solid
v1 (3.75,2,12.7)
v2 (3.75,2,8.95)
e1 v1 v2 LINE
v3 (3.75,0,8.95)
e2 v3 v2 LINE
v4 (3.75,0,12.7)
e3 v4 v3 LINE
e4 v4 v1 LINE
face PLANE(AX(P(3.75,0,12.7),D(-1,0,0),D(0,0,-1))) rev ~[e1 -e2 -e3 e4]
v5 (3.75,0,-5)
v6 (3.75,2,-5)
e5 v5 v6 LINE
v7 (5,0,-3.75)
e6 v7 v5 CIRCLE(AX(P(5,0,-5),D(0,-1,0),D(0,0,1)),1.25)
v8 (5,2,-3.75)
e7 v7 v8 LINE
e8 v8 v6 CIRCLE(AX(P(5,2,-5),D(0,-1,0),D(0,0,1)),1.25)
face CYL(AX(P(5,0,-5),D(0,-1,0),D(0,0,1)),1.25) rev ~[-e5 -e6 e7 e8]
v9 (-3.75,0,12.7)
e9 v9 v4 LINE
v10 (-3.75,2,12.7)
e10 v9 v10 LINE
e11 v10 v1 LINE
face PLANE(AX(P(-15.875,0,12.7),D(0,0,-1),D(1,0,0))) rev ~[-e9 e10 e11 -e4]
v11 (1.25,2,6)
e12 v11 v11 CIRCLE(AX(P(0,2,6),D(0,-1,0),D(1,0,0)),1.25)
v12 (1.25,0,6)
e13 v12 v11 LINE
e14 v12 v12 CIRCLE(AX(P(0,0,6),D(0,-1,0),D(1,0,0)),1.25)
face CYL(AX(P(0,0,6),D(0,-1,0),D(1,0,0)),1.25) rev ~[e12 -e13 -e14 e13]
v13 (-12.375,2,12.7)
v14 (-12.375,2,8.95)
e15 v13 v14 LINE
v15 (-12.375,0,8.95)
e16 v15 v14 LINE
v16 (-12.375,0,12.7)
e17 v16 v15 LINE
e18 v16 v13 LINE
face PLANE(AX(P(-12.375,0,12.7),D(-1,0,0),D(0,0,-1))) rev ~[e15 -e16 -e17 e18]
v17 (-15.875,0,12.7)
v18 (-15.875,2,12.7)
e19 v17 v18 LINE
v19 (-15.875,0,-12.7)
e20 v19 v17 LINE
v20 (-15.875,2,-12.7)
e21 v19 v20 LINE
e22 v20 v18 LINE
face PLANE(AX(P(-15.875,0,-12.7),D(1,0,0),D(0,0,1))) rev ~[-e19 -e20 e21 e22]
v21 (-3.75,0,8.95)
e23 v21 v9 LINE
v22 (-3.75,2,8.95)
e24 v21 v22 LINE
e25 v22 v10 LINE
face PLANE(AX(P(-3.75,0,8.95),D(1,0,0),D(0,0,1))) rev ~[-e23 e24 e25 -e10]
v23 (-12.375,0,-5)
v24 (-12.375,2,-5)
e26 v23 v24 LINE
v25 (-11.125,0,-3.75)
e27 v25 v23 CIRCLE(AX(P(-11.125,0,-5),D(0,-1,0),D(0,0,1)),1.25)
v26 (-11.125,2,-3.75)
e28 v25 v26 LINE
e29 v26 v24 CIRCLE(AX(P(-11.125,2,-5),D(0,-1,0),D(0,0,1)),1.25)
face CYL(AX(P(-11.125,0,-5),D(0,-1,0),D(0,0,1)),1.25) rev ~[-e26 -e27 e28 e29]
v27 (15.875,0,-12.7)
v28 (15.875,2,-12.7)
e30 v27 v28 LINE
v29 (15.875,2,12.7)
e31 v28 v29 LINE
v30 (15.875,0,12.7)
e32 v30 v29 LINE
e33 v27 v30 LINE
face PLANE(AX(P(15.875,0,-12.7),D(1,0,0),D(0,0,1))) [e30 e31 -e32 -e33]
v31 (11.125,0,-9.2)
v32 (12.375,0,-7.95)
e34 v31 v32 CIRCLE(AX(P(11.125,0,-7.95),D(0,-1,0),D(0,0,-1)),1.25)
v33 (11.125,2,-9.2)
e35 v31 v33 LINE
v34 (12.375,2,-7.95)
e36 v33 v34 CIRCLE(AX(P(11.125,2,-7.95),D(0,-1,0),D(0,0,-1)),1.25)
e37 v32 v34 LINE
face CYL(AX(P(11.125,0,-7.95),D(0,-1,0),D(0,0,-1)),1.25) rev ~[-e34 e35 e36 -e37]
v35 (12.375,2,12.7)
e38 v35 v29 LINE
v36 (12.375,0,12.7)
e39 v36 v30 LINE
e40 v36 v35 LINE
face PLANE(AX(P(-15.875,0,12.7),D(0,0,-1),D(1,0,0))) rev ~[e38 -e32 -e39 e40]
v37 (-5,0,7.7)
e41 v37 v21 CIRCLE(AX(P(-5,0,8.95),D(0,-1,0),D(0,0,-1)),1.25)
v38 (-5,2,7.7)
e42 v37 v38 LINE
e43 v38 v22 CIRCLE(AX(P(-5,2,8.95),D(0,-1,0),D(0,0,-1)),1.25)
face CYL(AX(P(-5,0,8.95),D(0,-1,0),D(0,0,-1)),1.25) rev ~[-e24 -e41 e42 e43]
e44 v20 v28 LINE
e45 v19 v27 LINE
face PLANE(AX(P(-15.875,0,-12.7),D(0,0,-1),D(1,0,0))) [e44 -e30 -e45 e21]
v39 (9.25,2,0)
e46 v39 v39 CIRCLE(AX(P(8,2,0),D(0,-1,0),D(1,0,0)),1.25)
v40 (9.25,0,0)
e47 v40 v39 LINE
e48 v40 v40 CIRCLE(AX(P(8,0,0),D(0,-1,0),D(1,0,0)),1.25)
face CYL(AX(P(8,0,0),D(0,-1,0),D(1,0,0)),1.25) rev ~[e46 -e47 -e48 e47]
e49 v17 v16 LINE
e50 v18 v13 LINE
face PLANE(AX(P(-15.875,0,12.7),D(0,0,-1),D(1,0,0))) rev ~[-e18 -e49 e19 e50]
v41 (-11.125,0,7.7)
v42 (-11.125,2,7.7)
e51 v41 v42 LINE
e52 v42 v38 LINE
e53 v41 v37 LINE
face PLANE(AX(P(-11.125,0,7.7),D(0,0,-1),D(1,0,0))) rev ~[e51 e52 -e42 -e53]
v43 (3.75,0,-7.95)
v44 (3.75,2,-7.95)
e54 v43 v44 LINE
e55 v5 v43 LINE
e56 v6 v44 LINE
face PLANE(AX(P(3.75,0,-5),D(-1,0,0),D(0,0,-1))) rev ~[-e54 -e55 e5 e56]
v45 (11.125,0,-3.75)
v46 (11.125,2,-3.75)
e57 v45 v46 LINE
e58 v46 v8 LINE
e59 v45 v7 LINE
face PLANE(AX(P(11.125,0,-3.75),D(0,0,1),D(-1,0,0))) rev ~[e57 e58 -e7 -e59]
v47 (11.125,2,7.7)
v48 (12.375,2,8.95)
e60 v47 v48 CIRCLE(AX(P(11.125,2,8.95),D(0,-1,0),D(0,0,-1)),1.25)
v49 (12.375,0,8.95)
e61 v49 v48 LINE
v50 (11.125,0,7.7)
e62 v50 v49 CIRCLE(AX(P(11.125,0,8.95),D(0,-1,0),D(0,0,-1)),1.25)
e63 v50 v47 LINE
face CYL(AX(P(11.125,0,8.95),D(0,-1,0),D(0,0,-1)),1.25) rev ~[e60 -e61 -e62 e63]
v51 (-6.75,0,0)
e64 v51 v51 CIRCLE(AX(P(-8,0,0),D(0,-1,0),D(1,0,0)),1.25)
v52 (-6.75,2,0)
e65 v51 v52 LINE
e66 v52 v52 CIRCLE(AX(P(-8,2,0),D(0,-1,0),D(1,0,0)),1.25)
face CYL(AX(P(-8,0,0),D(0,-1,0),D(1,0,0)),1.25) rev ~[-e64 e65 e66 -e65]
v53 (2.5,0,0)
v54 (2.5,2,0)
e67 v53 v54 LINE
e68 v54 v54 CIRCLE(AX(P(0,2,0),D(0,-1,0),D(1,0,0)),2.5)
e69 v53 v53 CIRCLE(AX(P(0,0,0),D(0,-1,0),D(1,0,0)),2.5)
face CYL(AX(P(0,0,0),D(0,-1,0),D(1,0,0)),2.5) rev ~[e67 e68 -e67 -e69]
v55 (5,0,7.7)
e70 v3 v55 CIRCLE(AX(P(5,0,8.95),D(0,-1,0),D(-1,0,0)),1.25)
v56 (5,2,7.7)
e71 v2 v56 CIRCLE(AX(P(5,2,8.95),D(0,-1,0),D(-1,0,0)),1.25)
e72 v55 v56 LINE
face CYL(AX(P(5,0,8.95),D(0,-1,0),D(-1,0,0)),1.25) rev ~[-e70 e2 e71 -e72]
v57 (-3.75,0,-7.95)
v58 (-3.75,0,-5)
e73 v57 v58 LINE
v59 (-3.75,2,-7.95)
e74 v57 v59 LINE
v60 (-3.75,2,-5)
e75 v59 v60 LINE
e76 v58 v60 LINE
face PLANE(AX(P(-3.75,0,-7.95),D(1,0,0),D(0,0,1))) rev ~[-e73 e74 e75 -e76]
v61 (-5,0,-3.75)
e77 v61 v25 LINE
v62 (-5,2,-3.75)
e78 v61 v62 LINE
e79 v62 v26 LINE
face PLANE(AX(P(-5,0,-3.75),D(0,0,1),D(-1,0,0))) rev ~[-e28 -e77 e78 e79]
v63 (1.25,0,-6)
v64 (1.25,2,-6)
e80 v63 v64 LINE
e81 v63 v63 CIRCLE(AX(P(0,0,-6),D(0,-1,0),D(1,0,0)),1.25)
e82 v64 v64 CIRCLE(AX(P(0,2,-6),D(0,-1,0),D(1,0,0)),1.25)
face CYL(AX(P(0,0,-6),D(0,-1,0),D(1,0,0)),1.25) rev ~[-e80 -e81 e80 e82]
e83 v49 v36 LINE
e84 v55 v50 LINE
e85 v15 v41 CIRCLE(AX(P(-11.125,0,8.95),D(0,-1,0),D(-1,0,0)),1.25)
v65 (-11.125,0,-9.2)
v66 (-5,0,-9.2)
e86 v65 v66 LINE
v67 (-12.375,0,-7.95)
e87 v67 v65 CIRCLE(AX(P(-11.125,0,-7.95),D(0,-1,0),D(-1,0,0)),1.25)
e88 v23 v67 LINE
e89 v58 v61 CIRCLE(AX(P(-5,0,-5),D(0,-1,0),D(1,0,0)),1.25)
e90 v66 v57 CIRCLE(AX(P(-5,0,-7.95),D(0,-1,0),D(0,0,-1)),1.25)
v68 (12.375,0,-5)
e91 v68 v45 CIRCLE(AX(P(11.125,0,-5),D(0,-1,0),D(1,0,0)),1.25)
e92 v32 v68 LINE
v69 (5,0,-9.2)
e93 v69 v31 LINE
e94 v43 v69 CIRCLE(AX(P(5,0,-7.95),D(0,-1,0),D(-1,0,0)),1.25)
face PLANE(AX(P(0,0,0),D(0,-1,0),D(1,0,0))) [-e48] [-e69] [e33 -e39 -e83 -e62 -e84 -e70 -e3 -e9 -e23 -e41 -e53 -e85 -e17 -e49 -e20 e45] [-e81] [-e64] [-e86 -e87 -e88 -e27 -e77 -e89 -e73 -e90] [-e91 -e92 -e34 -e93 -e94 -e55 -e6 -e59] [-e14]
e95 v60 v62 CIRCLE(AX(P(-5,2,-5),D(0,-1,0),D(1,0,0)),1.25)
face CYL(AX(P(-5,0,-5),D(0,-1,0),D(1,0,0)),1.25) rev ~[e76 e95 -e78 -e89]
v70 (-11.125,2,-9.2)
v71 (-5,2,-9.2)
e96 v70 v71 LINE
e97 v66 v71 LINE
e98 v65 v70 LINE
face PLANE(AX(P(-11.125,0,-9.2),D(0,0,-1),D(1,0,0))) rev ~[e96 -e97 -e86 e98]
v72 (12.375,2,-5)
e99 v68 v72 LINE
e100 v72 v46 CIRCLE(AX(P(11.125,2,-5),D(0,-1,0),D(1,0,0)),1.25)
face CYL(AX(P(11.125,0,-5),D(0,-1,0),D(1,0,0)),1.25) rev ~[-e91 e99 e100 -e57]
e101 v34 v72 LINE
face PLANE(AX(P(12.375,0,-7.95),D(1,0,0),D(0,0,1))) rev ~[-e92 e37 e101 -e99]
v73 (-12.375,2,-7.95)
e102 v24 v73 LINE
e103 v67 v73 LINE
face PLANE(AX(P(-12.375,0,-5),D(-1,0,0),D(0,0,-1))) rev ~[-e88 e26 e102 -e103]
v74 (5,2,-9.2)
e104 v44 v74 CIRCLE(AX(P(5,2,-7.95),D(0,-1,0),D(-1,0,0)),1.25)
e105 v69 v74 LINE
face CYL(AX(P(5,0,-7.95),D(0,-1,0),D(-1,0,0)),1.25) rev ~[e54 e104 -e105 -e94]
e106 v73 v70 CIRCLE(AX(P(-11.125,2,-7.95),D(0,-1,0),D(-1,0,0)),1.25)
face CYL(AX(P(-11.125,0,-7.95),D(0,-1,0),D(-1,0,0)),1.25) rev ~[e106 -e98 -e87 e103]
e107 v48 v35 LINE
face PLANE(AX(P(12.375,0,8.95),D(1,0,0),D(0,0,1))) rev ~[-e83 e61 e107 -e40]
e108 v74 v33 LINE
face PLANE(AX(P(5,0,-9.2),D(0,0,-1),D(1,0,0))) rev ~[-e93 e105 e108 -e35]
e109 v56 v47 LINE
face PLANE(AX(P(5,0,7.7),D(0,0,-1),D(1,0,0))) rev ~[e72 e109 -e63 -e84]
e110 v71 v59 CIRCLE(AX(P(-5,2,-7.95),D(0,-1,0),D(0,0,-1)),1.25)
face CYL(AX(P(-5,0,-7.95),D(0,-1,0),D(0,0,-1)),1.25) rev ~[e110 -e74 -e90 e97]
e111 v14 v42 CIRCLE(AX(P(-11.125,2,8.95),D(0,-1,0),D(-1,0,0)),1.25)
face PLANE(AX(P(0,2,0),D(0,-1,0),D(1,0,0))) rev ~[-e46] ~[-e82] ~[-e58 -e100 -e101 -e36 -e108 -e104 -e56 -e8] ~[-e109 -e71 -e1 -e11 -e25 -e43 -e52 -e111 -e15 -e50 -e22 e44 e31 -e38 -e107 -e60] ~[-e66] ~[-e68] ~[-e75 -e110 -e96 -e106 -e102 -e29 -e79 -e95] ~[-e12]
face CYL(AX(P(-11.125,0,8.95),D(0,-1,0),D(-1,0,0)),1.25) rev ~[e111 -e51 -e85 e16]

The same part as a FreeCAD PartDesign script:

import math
import FreeCAD as App
import Part
import Sketcher
from FreeCAD import Vector


def add_polygon(sketch, points):
    """Adds a closed chain of lines whose ends are joined by coincident constraints."""
    first, n = sketch.GeometryCount, len(points)
    for a, b in zip(points, points[1:] + points[:1]):
        sketch.addGeometry(Part.LineSegment(App.Vector(*a, 0), App.Vector(*b, 0)), False)
    for i in range(n):
        sketch.addConstraint(Sketcher.Constraint("Coincident", first + i, 2, first + (i + 1) % n, 1))

doc = App.newDocument("Part")
body = doc.addObject("PartDesign::Body", "Body")

# Sketch on XZ plane
sketch1 = body.newObject("Sketcher::SketchObject", "Sketch")
sketch1.AttachmentSupport = (doc.getObject("XZ_Plane"), [""])
sketch1.MapMode = "FlatFace"
add_polygon(sketch1, [(-16, 13), (-16, -13), (16, -13), (16, 13)])  # lines 0-3
sketch1.addConstraint(Sketcher.Constraint("Vertical", 0))
sketch1.addConstraint(Sketcher.Constraint("Horizontal", 1))
sketch1.addConstraint(Sketcher.Constraint("Vertical", 2))
sketch1.addConstraint(Sketcher.Constraint("Horizontal", 3))
sketch1.addConstraint(Sketcher.Constraint("Symmetric", 0, 2, 2, 2, -1, 1))
sketch1.addConstraint(Sketcher.Constraint("DistanceY", 0, 2, 0, 1, 25.4))
sketch1.addConstraint(Sketcher.Constraint("DistanceX", 1, 1, 1, 2, 31.75))
pad1 = body.newObject("PartDesign::Pad", "Pad")
pad1.Profile = sketch1
pad1.Length = 2
pad1.Reversed = True

# Sketch on XZ plane
sketch2 = body.newObject("Sketcher::SketchObject", "Sketch001")
sketch2.AttachmentSupport = (doc.getObject("XZ_Plane"), [""])
sketch2.MapMode = "FlatFace"
sketch2.addGeometry(Part.Circle(Vector(0, 0, 0), Vector(0, 0, 1), 2.5), False)
sketch2.addGeometry(Part.Circle(Vector(-8, 0, 0), Vector(0, 0, 1), 1.2), False)
sketch2.addGeometry(Part.Circle(Vector(8, 0, 0), Vector(0, 0, 1), 1.2), False)
sketch2.addGeometry(Part.Circle(Vector(0, 6, 0), Vector(0, 0, 1), 1.2), False)
sketch2.addGeometry(Part.Circle(Vector(0, -6, 0), Vector(0, 0, 1), 1.2), False)
sketch2.addGeometry(Part.LineSegment(Vector(-3.8, -8, 0), Vector(-3.8, -5, 0)), False)
sketch2.addGeometry(Part.ArcOfCircle(Part.Circle(Vector(-5, -5, 0), Vector(0, 0, 1), 1.2), math.radians(0), math.radians(90)), False)
sketch2.addGeometry(Part.LineSegment(Vector(-5, -3.8, 0), Vector(-11.1, -3.8, 0)), False)
sketch2.addGeometry(Part.ArcOfCircle(Part.Circle(Vector(-11.1, -5, 0), Vector(0, 0, 1), 1.2), math.radians(90), math.radians(180)), False)
sketch2.addGeometry(Part.LineSegment(Vector(-12.4, -5, 0), Vector(-12.4, -8, 0)), False)
sketch2.addGeometry(Part.ArcOfCircle(Part.Circle(Vector(-11.1, -8, 0), Vector(0, 0, 1), 1.2), math.radians(180), math.radians(270)), False)
sketch2.addGeometry(Part.LineSegment(Vector(-11.1, -9.2, 0), Vector(-5, -9.2, 0)), False)
sketch2.addGeometry(Part.ArcOfCircle(Part.Circle(Vector(-5, -8, 0), Vector(0, 0, 1), 1.2), math.radians(-90), math.radians(0)), False)
sketch2.addGeometry(Part.ArcOfCircle(Part.Circle(Vector(5, -5, 0), Vector(0, 0, 1), 1.2), math.radians(90), math.radians(180)), False)
sketch2.addGeometry(Part.LineSegment(Vector(3.8, -5, 0), Vector(3.8, -8, 0)), False)
sketch2.addGeometry(Part.ArcOfCircle(Part.Circle(Vector(5, -8, 0), Vector(0, 0, 1), 1.2), math.radians(180), math.radians(270)), False)
sketch2.addGeometry(Part.LineSegment(Vector(5, -9.2, 0), Vector(11.1, -9.2, 0)), False)
sketch2.addGeometry(Part.ArcOfCircle(Part.Circle(Vector(11.1, -8, 0), Vector(0, 0, 1), 1.2), math.radians(-90), math.radians(0)), False)
sketch2.addGeometry(Part.LineSegment(Vector(12.4, -8, 0), Vector(12.4, -5, 0)), False)
sketch2.addGeometry(Part.ArcOfCircle(Part.Circle(Vector(11.1, -5, 0), Vector(0, 0, 1), 1.2), math.radians(0), math.radians(90)), False)
sketch2.addGeometry(Part.LineSegment(Vector(11.1, -3.8, 0), Vector(5, -3.8, 0)), False)
sketch2.addGeometry(Part.LineSegment(Vector(-3.8, 12.7, 0), Vector(-12.4, 12.7, 0)), False)
sketch2.addGeometry(Part.LineSegment(Vector(-12.4, 12.7, 0), Vector(-12.4, 8.9, 0)), False)
sketch2.addGeometry(Part.ArcOfCircle(Part.Circle(Vector(-11.1, 8.9, 0), Vector(0, 0, 1), 1.2), math.radians(180), math.radians(270)), False)
sketch2.addGeometry(Part.LineSegment(Vector(-11.1, 7.7, 0), Vector(-5, 7.7, 0)), False)
sketch2.addGeometry(Part.ArcOfCircle(Part.Circle(Vector(-5, 8.9, 0), Vector(0, 0, 1), 1.2), math.radians(-90), math.radians(0)), False)
sketch2.addGeometry(Part.LineSegment(Vector(-3.8, 8.9, 0), Vector(-3.8, 12.7, 0)), False)
sketch2.addGeometry(Part.LineSegment(Vector(3.8, 12.7, 0), Vector(3.8, 8.9, 0)), False)
sketch2.addGeometry(Part.ArcOfCircle(Part.Circle(Vector(5, 8.9, 0), Vector(0, 0, 1), 1.2), math.radians(180), math.radians(270)), False)
sketch2.addGeometry(Part.LineSegment(Vector(5, 7.7, 0), Vector(11.1, 7.7, 0)), False)
sketch2.addGeometry(Part.ArcOfCircle(Part.Circle(Vector(11.1, 8.9, 0), Vector(0, 0, 1), 1.2), math.radians(-90), math.radians(0)), False)
sketch2.addGeometry(Part.LineSegment(Vector(12.4, 8.9, 0), Vector(12.4, 12.7, 0)), False)
sketch2.addGeometry(Part.LineSegment(Vector(12.4, 12.7, 0), Vector(3.8, 12.7, 0)), False)
sketch2.addConstraint(Sketcher.Constraint("Tangent", 5, 2, 6, 1))
sketch2.addConstraint(Sketcher.Constraint("Tangent", 6, 2, 7, 1))
sketch2.addConstraint(Sketcher.Constraint("Tangent", 7, 2, 8, 1))
sketch2.addConstraint(Sketcher.Constraint("Tangent", 8, 2, 9, 1))
sketch2.addConstraint(Sketcher.Constraint("Tangent", 9, 2, 10, 1))
sketch2.addConstraint(Sketcher.Constraint("Tangent", 10, 2, 11, 1))
sketch2.addConstraint(Sketcher.Constraint("Tangent", 11, 2, 12, 1))
sketch2.addConstraint(Sketcher.Constraint("Tangent", 12, 2, 5, 1))
sketch2.addConstraint(Sketcher.Constraint("Tangent", 13, 2, 14, 1))
sketch2.addConstraint(Sketcher.Constraint("Tangent", 14, 2, 15, 1))
sketch2.addConstraint(Sketcher.Constraint("Tangent", 15, 2, 16, 1))
sketch2.addConstraint(Sketcher.Constraint("Tangent", 16, 2, 17, 1))
sketch2.addConstraint(Sketcher.Constraint("Tangent", 17, 2, 18, 1))
sketch2.addConstraint(Sketcher.Constraint("Tangent", 18, 2, 19, 1))
sketch2.addConstraint(Sketcher.Constraint("Tangent", 19, 2, 20, 1))
sketch2.addConstraint(Sketcher.Constraint("Tangent", 20, 2, 13, 1))
sketch2.addConstraint(Sketcher.Constraint("Coincident", 21, 2, 22, 1))
sketch2.addConstraint(Sketcher.Constraint("Tangent", 22, 2, 23, 1))
sketch2.addConstraint(Sketcher.Constraint("Tangent", 23, 2, 24, 1))
sketch2.addConstraint(Sketcher.Constraint("Tangent", 24, 2, 25, 1))
sketch2.addConstraint(Sketcher.Constraint("Tangent", 25, 2, 26, 1))
sketch2.addConstraint(Sketcher.Constraint("Coincident", 26, 2, 21, 1))
sketch2.addConstraint(Sketcher.Constraint("Tangent", 27, 2, 28, 1))
sketch2.addConstraint(Sketcher.Constraint("Tangent", 28, 2, 29, 1))
sketch2.addConstraint(Sketcher.Constraint("Tangent", 29, 2, 30, 1))
sketch2.addConstraint(Sketcher.Constraint("Tangent", 30, 2, 31, 1))
sketch2.addConstraint(Sketcher.Constraint("Coincident", 31, 2, 32, 1))
sketch2.addConstraint(Sketcher.Constraint("Coincident", 32, 2, 27, 1))
sketch2.addConstraint(Sketcher.Constraint("Vertical", 5))
sketch2.addConstraint(Sketcher.Constraint("Horizontal", 7))
sketch2.addConstraint(Sketcher.Constraint("Vertical", 9))
sketch2.addConstraint(Sketcher.Constraint("Horizontal", 11))
sketch2.addConstraint(Sketcher.Constraint("Vertical", 14))
sketch2.addConstraint(Sketcher.Constraint("Horizontal", 16))
sketch2.addConstraint(Sketcher.Constraint("Vertical", 18))
sketch2.addConstraint(Sketcher.Constraint("Horizontal", 20))
sketch2.addConstraint(Sketcher.Constraint("Horizontal", 21))
sketch2.addConstraint(Sketcher.Constraint("Vertical", 22))
sketch2.addConstraint(Sketcher.Constraint("Horizontal", 24))
sketch2.addConstraint(Sketcher.Constraint("Vertical", 26))
sketch2.addConstraint(Sketcher.Constraint("Vertical", 27))
sketch2.addConstraint(Sketcher.Constraint("Horizontal", 29))
sketch2.addConstraint(Sketcher.Constraint("Vertical", 31))
sketch2.addConstraint(Sketcher.Constraint("Horizontal", 32))
sketch2.addConstraint(Sketcher.Constraint("Coincident", 0, 3, -1, 1))
sketch2.addConstraint(Sketcher.Constraint("Equal", 1, 2))
sketch2.addConstraint(Sketcher.Constraint("Equal", 2, 3))
sketch2.addConstraint(Sketcher.Constraint("Equal", 3, 4))
sketch2.addConstraint(Sketcher.Constraint("Equal", 4, 6))
sketch2.addConstraint(Sketcher.Constraint("Equal", 6, 8))
sketch2.addConstraint(Sketcher.Constraint("Equal", 8, 10))
sketch2.addConstraint(Sketcher.Constraint("Equal", 10, 12))
sketch2.addConstraint(Sketcher.Constraint("Equal", 12, 13))
sketch2.addConstraint(Sketcher.Constraint("Equal", 13, 15))
sketch2.addConstraint(Sketcher.Constraint("Equal", 15, 17))
sketch2.addConstraint(Sketcher.Constraint("Equal", 17, 19))
sketch2.addConstraint(Sketcher.Constraint("Equal", 19, 23))
sketch2.addConstraint(Sketcher.Constraint("Equal", 23, 25))
sketch2.addConstraint(Sketcher.Constraint("Equal", 25, 28))
sketch2.addConstraint(Sketcher.Constraint("Equal", 28, 30))
sketch2.addConstraint(Sketcher.Constraint("Symmetric", 1, 3, 2, 3, -1, 1))
sketch2.addConstraint(Sketcher.Constraint("Symmetric", 3, 3, 4, 3, -1, 1))
sketch2.addConstraint(Sketcher.Constraint("Symmetric", 6, 3, 13, 3, -2))
sketch2.addConstraint(Sketcher.Constraint("Symmetric", 10, 3, 17, 3, -2))
sketch2.addConstraint(Sketcher.Constraint("Symmetric", 25, 3, 28, 3, -2))
sketch2.addConstraint(Sketcher.Constraint("Symmetric", 21, 2, 31, 2, -2))
sketch2.addConstraint(Sketcher.Constraint("PointOnObject", 1, 3, -1))
sketch2.addConstraint(Sketcher.Constraint("PointOnObject", 3, 3, -2))
sketch2.addConstraint(Sketcher.Constraint("Vertical", 10, 3, 23, 3))
sketch2.addConstraint(Sketcher.Constraint("Vertical", 12, 3, 25, 3))
sketch2.addConstraint(Sketcher.Constraint("Diameter", 0, 5.0))
sketch2.addConstraint(Sketcher.Constraint("Diameter", 1, 2.5))
sketch2.addConstraint(Sketcher.Constraint("DistanceX", 1, 3, -1, 1, 8.0))
sketch2.addConstraint(Sketcher.Constraint("DistanceY", -1, 1, 3, 3, 6.0))
sketch2.addConstraint(Sketcher.Constraint("DistanceX", 6, 3, -1, 1, 5.0))
sketch2.addConstraint(Sketcher.Constraint("DistanceY", 6, 3, -1, 1, 5.0))
sketch2.addConstraint(Sketcher.Constraint("DistanceY", 23, 2, 21, 2, 5.0))
sketch2.addConstraint(Sketcher.Constraint("DistanceY", 5, 1, 5, 2, 2.95))
sketch2.addConstraint(Sketcher.Constraint("DistanceY", -1, 1, 21, 2, 12.7))
sketch2.addConstraint(Sketcher.Constraint("DistanceX", 7, 2, 7, 1, 6.125))
pocket1 = body.newObject("PartDesign::Pocket", "Pocket")
pocket1.Profile = sketch2
pocket1.Type = "ThroughAll"

doc.recompute()
